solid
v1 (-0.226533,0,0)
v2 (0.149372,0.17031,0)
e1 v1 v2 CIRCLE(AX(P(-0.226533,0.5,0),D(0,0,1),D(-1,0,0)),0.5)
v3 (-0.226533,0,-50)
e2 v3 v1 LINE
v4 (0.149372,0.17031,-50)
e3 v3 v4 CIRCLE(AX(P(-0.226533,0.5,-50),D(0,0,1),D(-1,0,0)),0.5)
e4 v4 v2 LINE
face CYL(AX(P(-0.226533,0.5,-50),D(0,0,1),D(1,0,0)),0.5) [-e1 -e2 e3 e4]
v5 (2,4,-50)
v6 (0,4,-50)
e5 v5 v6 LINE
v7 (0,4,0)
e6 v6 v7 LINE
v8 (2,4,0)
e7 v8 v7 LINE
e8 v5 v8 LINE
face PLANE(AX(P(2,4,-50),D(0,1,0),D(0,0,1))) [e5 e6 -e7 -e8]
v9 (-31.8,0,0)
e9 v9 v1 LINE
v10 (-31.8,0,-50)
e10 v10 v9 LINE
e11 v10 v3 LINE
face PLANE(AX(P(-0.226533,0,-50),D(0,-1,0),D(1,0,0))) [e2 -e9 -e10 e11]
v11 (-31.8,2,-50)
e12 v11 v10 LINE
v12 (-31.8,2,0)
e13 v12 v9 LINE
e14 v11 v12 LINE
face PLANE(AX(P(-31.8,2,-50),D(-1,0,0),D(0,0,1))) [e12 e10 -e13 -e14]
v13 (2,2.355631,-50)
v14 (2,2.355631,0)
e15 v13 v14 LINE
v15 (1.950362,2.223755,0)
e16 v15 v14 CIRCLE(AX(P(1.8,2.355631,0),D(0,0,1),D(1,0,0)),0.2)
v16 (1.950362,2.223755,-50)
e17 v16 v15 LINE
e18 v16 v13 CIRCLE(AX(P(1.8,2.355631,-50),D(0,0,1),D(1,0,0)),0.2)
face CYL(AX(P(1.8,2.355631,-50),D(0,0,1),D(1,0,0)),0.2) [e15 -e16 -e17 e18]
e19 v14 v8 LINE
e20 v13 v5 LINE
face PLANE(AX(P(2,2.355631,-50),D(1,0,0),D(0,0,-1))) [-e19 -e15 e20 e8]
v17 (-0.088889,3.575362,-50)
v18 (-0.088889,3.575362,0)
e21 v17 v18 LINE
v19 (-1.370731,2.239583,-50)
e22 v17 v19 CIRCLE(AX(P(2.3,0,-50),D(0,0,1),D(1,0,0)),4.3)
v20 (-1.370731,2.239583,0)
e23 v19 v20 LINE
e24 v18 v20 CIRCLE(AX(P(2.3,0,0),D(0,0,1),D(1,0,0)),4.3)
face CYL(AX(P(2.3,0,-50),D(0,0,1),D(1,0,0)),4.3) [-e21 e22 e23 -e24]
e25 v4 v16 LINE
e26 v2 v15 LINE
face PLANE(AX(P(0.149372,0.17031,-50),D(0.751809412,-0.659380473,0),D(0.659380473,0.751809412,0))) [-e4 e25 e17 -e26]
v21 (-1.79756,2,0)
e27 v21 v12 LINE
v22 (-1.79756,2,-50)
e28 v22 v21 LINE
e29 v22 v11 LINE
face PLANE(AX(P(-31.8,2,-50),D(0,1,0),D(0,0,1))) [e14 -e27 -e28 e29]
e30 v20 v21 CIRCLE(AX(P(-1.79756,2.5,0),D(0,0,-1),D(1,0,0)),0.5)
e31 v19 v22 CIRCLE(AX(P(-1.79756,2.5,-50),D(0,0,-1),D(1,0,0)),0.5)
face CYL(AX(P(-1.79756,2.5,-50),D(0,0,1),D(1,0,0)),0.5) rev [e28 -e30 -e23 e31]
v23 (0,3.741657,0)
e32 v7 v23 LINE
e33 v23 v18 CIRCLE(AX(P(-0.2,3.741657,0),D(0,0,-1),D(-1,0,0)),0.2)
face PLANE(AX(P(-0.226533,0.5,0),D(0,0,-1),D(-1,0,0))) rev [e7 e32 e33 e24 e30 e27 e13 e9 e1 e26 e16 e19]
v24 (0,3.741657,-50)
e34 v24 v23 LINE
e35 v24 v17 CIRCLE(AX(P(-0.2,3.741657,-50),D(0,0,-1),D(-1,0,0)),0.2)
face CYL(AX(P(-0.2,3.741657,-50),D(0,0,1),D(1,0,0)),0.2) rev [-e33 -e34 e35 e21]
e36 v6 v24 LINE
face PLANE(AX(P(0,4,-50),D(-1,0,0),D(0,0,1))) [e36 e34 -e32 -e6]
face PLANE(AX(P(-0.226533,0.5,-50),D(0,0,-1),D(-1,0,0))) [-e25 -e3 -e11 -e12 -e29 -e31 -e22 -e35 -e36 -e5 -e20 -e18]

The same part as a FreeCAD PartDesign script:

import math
import FreeCAD as App
import Part
import Sketcher

doc = App.newDocument("Part")
body = doc.addObject("PartDesign::Body", "Body")

# Sketch on XY plane
sketch1 = doc.addObject("Sketcher::SketchObject", "Sketch")
body.addObject(sketch1)
sketch1.AttachmentSupport = (doc.XY_Plane, [""])
sketch1.MapMode = "FlatFace"
sketch1.addGeometry(Part.LineSegment(App.Vector(-31.8, 0, 0), App.Vector(-0.23, 0, 0)), False)
sketch1.addGeometry(Part.ArcOfCircle(Part.Circle(App.Vector(-0.23, 0.5, 0), App.Vector(0, 0, 1), 0.5), math.radians(-90), math.radians(-41)), False)
sketch1.addGeometry(Part.LineSegment(App.Vector(0.15, 0.17, 0), App.Vector(1.95, 2.22, 0)), False)
sketch1.addGeometry(Part.ArcOfCircle(Part.Circle(App.Vector(1.8, 2.36, 0), App.Vector(0, 0, 1), 0.2), math.radians(-41), math.radians(0)), False)
sketch1.addGeometry(Part.LineSegment(App.Vector(2, 2.36, 0), App.Vector(2, 4, 0)), False)
sketch1.addGeometry(Part.LineSegment(App.Vector(2, 4, 0), App.Vector(0, 4, 0)), False)
sketch1.addGeometry(Part.LineSegment(App.Vector(0, 4, 0), App.Vector(0, 3.74, 0)), False)
sketch1.addGeometry(Part.ArcOfCircle(Part.Circle(App.Vector(-0.2, 3.74, 0), App.Vector(0, 0, 1), 0.2), math.radians(-56), math.radians(0)), False)
sketch1.addGeometry(Part.ArcOfCircle(Part.Circle(App.Vector(2.3, 0, 0), App.Vector(0, 0, 1), 4.3), math.radians(124), math.radians(149)), False)
sketch1.addGeometry(Part.ArcOfCircle(Part.Circle(App.Vector(-1.8, 2.5, 0), App.Vector(0, 0, 1), 0.5), math.radians(-90), math.radians(-31)), False)
sketch1.addGeometry(Part.LineSegment(App.Vector(-1.8, 2, 0), App.Vector(-31.8, 2, 0)), False)
sketch1.addGeometry(Part.LineSegment(App.Vector(-31.8, 2, 0), App.Vector(-31.8, 0, 0)), False)
sketch1.addConstraint(Sketcher.Constraint("Tangent", 0, 2, 1, 1))
sketch1.addConstraint(Sketcher.Constraint("Tangent", 1, 2, 2, 1))
sketch1.addConstraint(Sketcher.Constraint("Tangent", 2, 2, 3, 1))
sketch1.addConstraint(Sketcher.Constraint("Tangent", 3, 2, 4, 1))
sketch1.addConstraint(Sketcher.Constraint("Coincident", 4, 2, 5, 1))
sketch1.addConstraint(Sketcher.Constraint("Coincident", 5, 2, 6, 1))
sketch1.addConstraint(Sketcher.Constraint("Tangent", 6, 2, 7, 2))
sketch1.addConstraint(Sketcher.Constraint("Tangent", 7, 1, 8, 1))
sketch1.addConstraint(Sketcher.Constraint("Tangent", 8, 2, 9, 2))
sketch1.addConstraint(Sketcher.Constraint("Tangent", 9, 1, 10, 1))
sketch1.addConstraint(Sketcher.Constraint("Coincident", 10, 2, 11, 1))
sketch1.addConstraint(Sketcher.Constraint("Coincident", 11, 2, 0, 1))
sketch1.addConstraint(Sketcher.Constraint("Horizontal", 0))
sketch1.addConstraint(Sketcher.Constraint("Vertical", 4))
sketch1.addConstraint(Sketcher.Constraint("Horizontal", 5))
sketch1.addConstraint(Sketcher.Constraint("Vertical", 6))
sketch1.addConstraint(Sketcher.Constraint("Horizontal", 10))
sketch1.addConstraint(Sketcher.Constraint("Vertical", 11))
sketch1.addConstraint(Sketcher.Constraint("Equal", 3, 7))
sketch1.addConstraint(Sketcher.Constraint("Equal", 1, 9))
sketch1.addConstraint(Sketcher.Constraint("PointOnObject", 8, 3, -1))
sketch1.addConstraint(Sketcher.Constraint("PointOnObject", 0, 2, -1))
sketch1.addConstraint(Sketcher.Constraint("PointOnObject", 5, 2, -2))
sketch1.addConstraint(Sketcher.Constraint("Equal", 5, 11))
sketch1.addConstraint(Sketcher.Constraint("Radius", 1, 0.5))
sketch1.addConstraint(Sketcher.Constraint("Radius", 3, 0.2))
sketch1.addConstraint(Sketcher.Constraint("Radius", 8, 4.3))
sketch1.addConstraint(Sketcher.Constraint("DistanceX", 5, 2, 5, 1, 2.0))
sketch1.addConstraint(Sketcher.Constraint("DistanceY", -1, 1, 4, 2, 4.0))
sketch1.addConstraint(Sketcher.Constraint("DistanceX", -1, 1, 8, 3, 2.3))
sketch1.addConstraint(Sketcher.Constraint("DistanceX", 10, 2, -1, 1, 31.8))
sketch1.addConstraint(Sketcher.Constraint("DistanceY", 4, 1, 4, 2, 1.644369))
sketch1.addConstraint(Sketcher.Constraint("DistanceX", 0, 1, 0, 2, 31.573467))
pad1 = doc.addObject("PartDesign::Pad", "Pad")
body.addObject(pad1)
pad1.Profile = sketch1
pad1.Length = 50
pad1.Reversed = True

doc.recompute()
